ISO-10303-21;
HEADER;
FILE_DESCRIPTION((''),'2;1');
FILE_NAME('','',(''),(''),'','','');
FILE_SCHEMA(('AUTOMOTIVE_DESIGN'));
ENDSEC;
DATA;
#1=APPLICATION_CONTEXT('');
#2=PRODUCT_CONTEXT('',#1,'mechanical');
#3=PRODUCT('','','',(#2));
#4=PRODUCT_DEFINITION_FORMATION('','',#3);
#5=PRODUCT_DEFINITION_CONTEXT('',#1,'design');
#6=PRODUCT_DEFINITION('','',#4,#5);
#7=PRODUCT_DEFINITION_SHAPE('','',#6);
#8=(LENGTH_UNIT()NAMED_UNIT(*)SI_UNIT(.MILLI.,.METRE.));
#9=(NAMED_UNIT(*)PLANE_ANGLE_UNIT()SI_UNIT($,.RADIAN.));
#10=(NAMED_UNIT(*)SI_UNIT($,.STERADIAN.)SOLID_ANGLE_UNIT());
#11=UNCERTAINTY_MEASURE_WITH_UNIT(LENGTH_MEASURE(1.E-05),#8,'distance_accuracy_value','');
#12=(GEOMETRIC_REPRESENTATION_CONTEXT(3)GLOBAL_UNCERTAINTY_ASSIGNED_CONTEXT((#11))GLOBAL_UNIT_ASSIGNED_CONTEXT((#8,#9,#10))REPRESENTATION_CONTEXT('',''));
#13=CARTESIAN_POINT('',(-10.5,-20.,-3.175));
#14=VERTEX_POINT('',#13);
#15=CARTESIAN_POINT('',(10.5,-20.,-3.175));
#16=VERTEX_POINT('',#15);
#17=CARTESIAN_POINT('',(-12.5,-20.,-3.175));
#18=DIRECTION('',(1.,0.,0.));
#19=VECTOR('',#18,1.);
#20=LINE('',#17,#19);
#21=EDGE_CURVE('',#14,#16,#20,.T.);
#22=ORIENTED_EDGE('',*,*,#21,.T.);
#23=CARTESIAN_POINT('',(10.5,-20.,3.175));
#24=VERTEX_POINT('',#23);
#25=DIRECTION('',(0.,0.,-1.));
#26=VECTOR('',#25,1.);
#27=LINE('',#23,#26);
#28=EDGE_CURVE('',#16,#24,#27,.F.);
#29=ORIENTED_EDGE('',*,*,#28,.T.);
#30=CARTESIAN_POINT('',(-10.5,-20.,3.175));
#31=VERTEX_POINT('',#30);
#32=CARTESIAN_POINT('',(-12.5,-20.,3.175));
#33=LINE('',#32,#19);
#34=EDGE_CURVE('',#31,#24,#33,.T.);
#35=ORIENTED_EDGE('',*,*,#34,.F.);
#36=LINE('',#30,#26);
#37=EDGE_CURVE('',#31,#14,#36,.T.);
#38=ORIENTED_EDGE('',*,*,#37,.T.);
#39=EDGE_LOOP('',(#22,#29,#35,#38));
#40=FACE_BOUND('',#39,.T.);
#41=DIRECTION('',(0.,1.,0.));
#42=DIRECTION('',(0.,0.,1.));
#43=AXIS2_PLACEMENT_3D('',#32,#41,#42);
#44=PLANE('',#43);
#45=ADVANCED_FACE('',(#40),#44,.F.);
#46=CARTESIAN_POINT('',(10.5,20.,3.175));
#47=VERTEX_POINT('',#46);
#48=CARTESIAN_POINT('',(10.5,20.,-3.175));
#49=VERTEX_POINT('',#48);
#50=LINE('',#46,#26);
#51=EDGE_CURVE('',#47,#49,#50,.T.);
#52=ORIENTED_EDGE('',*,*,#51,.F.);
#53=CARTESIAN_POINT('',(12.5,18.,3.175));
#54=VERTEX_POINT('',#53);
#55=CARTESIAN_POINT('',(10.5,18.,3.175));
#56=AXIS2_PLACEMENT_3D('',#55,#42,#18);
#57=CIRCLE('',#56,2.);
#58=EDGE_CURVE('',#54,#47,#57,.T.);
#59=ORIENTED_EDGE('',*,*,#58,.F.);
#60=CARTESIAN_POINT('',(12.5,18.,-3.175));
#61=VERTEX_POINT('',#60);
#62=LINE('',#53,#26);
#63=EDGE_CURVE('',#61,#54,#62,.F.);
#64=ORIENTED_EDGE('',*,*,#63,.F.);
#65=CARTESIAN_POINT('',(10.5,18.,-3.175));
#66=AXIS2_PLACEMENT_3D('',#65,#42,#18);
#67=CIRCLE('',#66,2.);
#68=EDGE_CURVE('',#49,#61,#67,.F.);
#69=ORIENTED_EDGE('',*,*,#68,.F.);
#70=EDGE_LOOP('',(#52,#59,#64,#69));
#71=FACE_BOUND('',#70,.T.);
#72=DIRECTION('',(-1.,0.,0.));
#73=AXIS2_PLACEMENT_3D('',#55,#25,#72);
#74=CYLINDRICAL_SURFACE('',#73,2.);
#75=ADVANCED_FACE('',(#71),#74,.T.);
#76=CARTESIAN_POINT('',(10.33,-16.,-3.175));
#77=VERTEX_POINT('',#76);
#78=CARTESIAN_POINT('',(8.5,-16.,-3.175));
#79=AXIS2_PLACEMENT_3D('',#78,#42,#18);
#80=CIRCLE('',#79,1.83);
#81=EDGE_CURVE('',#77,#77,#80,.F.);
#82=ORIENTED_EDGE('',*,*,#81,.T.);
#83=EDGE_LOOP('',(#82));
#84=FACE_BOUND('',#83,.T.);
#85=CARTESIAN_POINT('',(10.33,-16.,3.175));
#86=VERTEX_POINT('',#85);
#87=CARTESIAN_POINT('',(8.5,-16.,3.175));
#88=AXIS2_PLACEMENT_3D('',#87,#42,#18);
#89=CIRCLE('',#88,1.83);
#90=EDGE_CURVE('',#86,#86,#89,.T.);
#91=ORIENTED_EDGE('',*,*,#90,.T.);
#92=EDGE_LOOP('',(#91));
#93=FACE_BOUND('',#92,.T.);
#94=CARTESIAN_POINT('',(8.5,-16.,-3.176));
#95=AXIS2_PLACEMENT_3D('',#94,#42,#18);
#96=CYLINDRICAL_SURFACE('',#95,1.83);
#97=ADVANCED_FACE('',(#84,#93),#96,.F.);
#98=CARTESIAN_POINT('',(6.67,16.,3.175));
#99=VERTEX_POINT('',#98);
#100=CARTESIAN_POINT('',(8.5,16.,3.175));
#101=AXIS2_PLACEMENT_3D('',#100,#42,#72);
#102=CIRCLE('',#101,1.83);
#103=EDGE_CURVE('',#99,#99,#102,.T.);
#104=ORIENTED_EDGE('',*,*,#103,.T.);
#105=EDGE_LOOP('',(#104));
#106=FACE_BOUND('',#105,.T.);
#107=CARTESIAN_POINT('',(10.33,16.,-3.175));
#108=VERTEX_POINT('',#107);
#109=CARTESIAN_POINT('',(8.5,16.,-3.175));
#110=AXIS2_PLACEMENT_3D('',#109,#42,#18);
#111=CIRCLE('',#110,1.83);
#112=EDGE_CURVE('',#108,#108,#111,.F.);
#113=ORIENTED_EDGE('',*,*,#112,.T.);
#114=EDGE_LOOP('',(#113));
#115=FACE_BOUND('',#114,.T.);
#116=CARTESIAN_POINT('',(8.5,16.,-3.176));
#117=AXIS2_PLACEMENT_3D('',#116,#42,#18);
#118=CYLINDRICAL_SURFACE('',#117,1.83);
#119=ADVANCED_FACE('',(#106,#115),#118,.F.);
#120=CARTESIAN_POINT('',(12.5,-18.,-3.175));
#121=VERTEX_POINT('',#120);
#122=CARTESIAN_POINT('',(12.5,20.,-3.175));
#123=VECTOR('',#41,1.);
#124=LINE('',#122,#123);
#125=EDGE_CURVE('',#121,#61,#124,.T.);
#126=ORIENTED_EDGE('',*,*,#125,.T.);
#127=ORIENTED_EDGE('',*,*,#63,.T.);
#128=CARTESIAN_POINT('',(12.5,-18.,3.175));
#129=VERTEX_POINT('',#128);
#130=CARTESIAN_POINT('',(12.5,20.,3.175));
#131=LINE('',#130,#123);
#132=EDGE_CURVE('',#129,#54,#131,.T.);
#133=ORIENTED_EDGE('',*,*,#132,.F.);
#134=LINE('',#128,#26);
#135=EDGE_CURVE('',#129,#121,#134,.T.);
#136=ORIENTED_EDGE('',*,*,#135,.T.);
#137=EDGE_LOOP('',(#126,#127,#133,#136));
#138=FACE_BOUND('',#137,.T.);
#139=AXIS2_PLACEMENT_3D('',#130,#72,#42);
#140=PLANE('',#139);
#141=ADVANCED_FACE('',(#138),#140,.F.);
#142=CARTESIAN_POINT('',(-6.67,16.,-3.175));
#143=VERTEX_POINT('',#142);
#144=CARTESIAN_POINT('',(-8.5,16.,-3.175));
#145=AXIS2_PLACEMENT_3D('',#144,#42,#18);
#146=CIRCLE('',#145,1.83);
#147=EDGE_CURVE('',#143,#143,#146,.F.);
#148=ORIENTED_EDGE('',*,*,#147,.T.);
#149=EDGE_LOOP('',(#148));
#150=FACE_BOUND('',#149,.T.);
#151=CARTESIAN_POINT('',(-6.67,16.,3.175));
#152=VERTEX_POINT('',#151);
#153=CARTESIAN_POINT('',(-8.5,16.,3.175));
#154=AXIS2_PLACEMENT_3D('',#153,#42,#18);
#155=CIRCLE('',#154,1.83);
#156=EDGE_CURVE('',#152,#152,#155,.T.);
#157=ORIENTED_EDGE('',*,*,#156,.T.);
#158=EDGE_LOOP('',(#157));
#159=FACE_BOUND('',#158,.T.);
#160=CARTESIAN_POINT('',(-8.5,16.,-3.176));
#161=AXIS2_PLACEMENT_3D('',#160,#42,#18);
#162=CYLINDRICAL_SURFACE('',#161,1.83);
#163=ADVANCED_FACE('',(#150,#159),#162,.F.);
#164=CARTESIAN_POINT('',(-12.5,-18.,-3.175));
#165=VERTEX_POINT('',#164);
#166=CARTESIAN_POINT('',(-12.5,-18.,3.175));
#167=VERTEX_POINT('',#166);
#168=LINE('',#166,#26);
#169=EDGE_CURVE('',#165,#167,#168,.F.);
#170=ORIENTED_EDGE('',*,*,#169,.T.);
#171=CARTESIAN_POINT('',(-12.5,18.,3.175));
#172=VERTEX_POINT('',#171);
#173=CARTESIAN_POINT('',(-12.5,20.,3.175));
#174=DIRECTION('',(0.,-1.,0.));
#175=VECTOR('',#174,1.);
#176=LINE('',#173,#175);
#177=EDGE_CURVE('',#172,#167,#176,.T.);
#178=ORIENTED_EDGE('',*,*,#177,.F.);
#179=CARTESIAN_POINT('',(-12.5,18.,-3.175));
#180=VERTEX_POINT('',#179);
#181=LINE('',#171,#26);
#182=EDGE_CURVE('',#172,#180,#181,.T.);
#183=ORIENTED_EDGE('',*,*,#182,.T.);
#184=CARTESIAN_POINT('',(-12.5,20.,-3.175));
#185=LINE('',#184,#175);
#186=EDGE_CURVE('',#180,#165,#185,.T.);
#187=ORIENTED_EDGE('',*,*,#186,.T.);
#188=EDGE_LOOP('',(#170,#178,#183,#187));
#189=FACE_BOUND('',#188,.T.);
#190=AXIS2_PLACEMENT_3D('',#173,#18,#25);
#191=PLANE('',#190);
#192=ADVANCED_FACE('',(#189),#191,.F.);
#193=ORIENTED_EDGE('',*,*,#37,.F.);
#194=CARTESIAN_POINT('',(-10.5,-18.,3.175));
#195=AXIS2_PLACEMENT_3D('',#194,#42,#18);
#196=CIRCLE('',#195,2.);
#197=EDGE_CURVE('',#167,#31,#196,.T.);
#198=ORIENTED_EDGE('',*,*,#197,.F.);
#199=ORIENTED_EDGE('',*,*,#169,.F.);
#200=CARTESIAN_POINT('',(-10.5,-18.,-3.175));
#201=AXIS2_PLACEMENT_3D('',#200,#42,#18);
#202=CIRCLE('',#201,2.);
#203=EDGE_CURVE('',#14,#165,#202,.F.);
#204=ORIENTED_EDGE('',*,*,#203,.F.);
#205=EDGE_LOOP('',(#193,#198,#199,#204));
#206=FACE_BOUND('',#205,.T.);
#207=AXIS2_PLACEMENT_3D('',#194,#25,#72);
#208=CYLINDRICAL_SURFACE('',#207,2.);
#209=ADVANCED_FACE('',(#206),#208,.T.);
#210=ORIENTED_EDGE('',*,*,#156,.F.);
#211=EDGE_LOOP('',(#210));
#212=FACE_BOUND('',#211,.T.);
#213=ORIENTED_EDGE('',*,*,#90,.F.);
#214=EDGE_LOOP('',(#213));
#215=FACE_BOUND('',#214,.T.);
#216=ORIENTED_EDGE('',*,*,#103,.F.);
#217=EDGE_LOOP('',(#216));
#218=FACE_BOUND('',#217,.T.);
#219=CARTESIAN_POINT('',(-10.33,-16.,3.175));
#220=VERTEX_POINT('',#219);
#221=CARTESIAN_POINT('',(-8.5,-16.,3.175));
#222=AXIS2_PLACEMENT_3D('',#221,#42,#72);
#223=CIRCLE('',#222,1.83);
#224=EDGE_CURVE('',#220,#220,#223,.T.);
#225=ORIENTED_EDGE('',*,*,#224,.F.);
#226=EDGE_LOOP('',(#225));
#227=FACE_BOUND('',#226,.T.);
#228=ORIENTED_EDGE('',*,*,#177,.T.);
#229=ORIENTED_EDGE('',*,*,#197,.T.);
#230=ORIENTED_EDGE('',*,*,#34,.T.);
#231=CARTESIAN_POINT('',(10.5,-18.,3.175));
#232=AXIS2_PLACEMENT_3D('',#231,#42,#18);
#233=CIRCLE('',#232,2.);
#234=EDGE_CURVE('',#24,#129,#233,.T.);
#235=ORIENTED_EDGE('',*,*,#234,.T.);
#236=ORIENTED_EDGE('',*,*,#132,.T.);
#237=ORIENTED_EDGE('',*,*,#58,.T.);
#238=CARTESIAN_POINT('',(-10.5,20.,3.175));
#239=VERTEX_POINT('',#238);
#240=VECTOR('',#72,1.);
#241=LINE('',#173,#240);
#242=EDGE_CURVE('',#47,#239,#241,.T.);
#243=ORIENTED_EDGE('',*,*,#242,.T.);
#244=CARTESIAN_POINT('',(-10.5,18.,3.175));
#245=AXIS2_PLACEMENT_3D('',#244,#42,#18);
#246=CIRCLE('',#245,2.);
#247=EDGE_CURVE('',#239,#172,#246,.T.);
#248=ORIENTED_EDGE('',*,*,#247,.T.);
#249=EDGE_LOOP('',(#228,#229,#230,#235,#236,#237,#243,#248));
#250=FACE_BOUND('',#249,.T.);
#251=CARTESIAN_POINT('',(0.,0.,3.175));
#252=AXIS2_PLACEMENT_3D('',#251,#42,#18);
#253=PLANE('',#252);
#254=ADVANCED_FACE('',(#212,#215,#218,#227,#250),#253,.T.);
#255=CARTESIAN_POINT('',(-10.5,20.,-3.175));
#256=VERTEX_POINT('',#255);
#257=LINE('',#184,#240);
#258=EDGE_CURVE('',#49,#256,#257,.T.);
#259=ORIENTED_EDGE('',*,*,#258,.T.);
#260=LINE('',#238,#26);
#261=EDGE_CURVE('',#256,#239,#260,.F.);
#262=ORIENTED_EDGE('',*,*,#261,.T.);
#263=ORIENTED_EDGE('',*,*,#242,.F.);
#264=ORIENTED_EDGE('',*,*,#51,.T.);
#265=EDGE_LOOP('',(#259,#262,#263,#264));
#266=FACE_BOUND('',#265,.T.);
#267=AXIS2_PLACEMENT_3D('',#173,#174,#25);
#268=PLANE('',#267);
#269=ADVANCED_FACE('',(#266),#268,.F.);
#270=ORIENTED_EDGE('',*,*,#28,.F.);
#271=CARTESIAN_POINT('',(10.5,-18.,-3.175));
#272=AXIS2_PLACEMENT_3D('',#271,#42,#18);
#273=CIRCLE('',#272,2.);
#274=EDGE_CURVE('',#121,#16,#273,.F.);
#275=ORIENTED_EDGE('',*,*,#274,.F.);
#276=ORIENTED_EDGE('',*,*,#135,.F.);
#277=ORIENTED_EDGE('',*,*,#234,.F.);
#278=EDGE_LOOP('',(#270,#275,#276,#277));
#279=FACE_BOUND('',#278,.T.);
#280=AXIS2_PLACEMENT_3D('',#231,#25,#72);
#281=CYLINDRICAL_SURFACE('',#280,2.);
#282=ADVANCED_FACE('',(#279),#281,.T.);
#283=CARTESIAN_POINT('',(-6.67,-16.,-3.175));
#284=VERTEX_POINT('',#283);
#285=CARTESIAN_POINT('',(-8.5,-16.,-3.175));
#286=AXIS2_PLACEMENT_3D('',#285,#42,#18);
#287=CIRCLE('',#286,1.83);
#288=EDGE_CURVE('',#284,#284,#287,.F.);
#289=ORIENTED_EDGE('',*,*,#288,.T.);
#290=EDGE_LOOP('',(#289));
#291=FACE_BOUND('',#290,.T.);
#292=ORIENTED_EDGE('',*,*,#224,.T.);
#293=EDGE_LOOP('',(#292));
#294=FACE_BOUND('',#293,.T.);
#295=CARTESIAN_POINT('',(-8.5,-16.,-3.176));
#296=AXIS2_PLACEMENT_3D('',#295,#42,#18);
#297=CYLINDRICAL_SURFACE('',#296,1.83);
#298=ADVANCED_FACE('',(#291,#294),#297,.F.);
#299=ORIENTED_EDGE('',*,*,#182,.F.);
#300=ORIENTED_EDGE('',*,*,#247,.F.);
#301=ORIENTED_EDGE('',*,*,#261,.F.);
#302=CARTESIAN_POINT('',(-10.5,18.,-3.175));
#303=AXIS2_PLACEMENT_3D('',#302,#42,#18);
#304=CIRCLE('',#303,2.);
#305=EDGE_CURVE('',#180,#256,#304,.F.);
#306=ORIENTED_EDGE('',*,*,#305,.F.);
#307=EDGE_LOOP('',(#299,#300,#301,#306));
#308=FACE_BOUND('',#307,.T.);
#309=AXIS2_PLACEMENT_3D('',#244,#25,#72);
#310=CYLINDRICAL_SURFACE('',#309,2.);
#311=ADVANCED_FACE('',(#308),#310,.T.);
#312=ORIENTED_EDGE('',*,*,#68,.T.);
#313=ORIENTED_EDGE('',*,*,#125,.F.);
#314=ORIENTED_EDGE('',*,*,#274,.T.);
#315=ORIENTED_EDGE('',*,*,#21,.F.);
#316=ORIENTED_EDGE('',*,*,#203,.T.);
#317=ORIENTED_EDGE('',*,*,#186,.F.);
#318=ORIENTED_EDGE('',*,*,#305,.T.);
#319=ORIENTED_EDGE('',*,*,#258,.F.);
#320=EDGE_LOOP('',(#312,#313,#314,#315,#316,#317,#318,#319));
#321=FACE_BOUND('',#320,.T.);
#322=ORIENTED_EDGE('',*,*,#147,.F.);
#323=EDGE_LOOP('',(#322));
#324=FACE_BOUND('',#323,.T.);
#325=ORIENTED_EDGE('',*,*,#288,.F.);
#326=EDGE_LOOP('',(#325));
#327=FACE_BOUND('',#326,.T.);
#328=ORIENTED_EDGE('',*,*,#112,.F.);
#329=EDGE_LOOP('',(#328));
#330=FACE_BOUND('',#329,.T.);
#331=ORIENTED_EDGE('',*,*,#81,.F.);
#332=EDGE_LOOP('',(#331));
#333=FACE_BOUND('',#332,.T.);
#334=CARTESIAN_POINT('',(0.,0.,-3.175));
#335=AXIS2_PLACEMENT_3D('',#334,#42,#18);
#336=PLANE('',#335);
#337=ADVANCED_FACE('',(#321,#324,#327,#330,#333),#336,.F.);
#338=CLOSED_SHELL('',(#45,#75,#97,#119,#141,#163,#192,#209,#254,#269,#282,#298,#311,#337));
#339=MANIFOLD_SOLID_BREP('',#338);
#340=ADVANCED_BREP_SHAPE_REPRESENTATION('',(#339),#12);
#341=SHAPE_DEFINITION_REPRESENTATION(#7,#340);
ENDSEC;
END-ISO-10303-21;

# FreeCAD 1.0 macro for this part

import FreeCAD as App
import Part
import Sketcher


def edges_at(feature, points):
    """Names of the edges that pass closest to the given points."""
    edges = feature.Shape.Edges
    near = lambda p: min(range(len(edges)), key=lambda i: edges[i].distToShape(Part.Vertex(*p))[0])
    return sorted({f"Edge{near(p) + 1}" for p in points})

doc = App.newDocument("Part")
params = doc.addObject("Spreadsheet::Sheet", "Params")
for row, (alias, value) in enumerate([
    ("sketch1_width", "25 mm"),
    ("sketch1_height", "40 mm"),
    ("pad1_length", "6.35 mm"),
    ("sketch2_diameter", "3.66 mm"),
    ("sketch3_diameter", "3.66 mm"),
    ("sketch4_diameter", "3.66 mm"),
    ("sketch5_diameter", "3.66 mm"),
    ("fillet_radius", "2 mm"),
], start=1):
    params.set(f"A{row}", alias)
    params.set(f"B{row}", "=" + value)
    params.setAlias(f"B{row}", alias)

body = doc.addObject("PartDesign::Body", "Body")

sketch1 = body.newObject("Sketcher::SketchObject", "Sketch")
sketch1.AttachmentSupport = (doc.getObject("XY_Plane"), [""])
sketch1.MapMode = "FlatFace"
sketch1.addGeometry([
    Part.LineSegment(App.Vector(-12, 20, 0), App.Vector(-12, -20, 0)),
    Part.LineSegment(App.Vector(-12, -20, 0), App.Vector(12, -20, 0)),
    Part.LineSegment(App.Vector(12, -20, 0), App.Vector(12, 20, 0)),
    Part.LineSegment(App.Vector(12, 20, 0), App.Vector(-12, 20, 0)),
], False)
sketch1.addConstraint([
    Sketcher.Constraint("Coincident", 0, 2, 1, 1),
    Sketcher.Constraint("Coincident", 1, 2, 2, 1),
    Sketcher.Constraint("Coincident", 2, 2, 3, 1),
    Sketcher.Constraint("Coincident", 3, 2, 0, 1),
    Sketcher.Constraint("Vertical", 0),
    Sketcher.Constraint("Horizontal", 1),
    Sketcher.Constraint("Vertical", 2),
    Sketcher.Constraint("Horizontal", 3),
    Sketcher.Constraint("Symmetric", 0, 2, 2, 2, -1, 1),
    Sketcher.Constraint("DistanceX", 1, 1, 1, 2, 25.0),
    Sketcher.Constraint("DistanceY", 0, 2, 0, 1, 40.0),
])
sketch1.setExpression("Constraints[9]", "Params.sketch1_width")
sketch1.setExpression("Constraints[10]", "Params.sketch1_height")
pad1 = body.newObject("PartDesign::Pad", "Pad")
pad1.Profile = sketch1
pad1.setExpression("Length", "Params.pad1_length")
pad1.Midplane = True

sketch2 = body.newObject("Sketcher::SketchObject", "Sketch001")
sketch2.AttachmentSupport = (doc.getObject("XY_Plane"), [""])
sketch2.MapMode = "FlatFace"
sketch2.AttachmentOffset = App.Placement(App.Vector(0, 0, 3.175), App.Rotation())
sketch2.addGeometry(Part.Circle(App.Vector(-8.5, 16, 0), App.Vector(0, 0, 1), 1.8), False)
sketch2.addConstraint([
    Sketcher.Constraint("Diameter", 0, 3.66),
    Sketcher.Constraint("DistanceY", -1, 1, 0, 3, 16.0),
    Sketcher.Constraint("DistanceX", 0, 3, -1, 1, 8.5),
])
sketch2.setExpression("Constraints[0]", "Params.sketch2_diameter")
pocket1 = body.newObject("PartDesign::Pocket", "Pocket")
pocket1.Profile = sketch2
pocket1.Type = "UpToFirst"

sketch3 = body.newObject("Sketcher::SketchObject", "Sketch002")
sketch3.AttachmentSupport = (doc.getObject("XY_Plane"), [""])
sketch3.MapMode = "FlatFace"
sketch3.AttachmentOffset = App.Placement(App.Vector(0, 0, 3.175), App.Rotation())
sketch3.addGeometry(Part.Circle(App.Vector(8.5, 16, 0), App.Vector(0, 0, 1), 1.8), False)
sketch3.addConstraint([
    Sketcher.Constraint("Diameter", 0, 3.66),
    Sketcher.Constraint("DistanceY", -1, 1, 0, 3, 16.0),
    Sketcher.Constraint("DistanceX", -1, 1, 0, 3, 8.5),
])
sketch3.setExpression("Constraints[0]", "Params.sketch3_diameter")
pocket2 = body.newObject("PartDesign::Pocket", "Pocket001")
pocket2.Profile = sketch3
pocket2.Type = "UpToFirst"

sketch4 = body.newObject("Sketcher::SketchObject", "Sketch003")
sketch4.AttachmentSupport = (doc.getObject("XY_Plane"), [""])
sketch4.MapMode = "FlatFace"
sketch4.AttachmentOffset = App.Placement(App.Vector(0, 0, 3.175), App.Rotation())
sketch4.addGeometry(Part.Circle(App.Vector(8.5, -16, 0), App.Vector(0, 0, 1), 1.8), False)
sketch4.addConstraint([
    Sketcher.Constraint("Diameter", 0, 3.66),
    Sketcher.Constraint("DistanceY", 0, 3, -1, 1, 16.0),
    Sketcher.Constraint("DistanceX", -1, 1, 0, 3, 8.5),
])
sketch4.setExpression("Constraints[0]", "Params.sketch4_diameter")
pocket3 = body.newObject("PartDesign::Pocket", "Pocket002")
pocket3.Profile = sketch4
pocket3.Type = "UpToFirst"

sketch5 = body.newObject("Sketcher::SketchObject", "Sketch004")
sketch5.AttachmentSupport = (doc.getObject("XY_Plane"), [""])
sketch5.MapMode = "FlatFace"
sketch5.AttachmentOffset = App.Placement(App.Vector(0, 0, 3.175), App.Rotation())
sketch5.addGeometry(Part.Circle(App.Vector(-8.5, -16, 0), App.Vector(0, 0, 1), 1.8), False)
sketch5.addConstraint([
    Sketcher.Constraint("Diameter", 0, 3.66),
    Sketcher.Constraint("DistanceY", 0, 3, -1, 1, 16.0),
    Sketcher.Constraint("DistanceX", 0, 3, -1, 1, 8.5),
])
sketch5.setExpression("Constraints[0]", "Params.sketch5_diameter")
pocket4 = body.newObject("PartDesign::Pocket", "Pocket003")
pocket4.Profile = sketch5
pocket4.Type = "UpToFirst"
doc.recompute()

fillet = body.newObject("PartDesign::Fillet", "Fillet")
fillet.Base = (pocket4, edges_at(pocket4, [
    (-12.5, 20, 0),
    (12.5, 20, 0),
    (12.5, -20, 0),
    (-12.5, -20, 0),
]))
fillet.setExpression("Radius", "Params.fillet_radius")

doc.recompute()
